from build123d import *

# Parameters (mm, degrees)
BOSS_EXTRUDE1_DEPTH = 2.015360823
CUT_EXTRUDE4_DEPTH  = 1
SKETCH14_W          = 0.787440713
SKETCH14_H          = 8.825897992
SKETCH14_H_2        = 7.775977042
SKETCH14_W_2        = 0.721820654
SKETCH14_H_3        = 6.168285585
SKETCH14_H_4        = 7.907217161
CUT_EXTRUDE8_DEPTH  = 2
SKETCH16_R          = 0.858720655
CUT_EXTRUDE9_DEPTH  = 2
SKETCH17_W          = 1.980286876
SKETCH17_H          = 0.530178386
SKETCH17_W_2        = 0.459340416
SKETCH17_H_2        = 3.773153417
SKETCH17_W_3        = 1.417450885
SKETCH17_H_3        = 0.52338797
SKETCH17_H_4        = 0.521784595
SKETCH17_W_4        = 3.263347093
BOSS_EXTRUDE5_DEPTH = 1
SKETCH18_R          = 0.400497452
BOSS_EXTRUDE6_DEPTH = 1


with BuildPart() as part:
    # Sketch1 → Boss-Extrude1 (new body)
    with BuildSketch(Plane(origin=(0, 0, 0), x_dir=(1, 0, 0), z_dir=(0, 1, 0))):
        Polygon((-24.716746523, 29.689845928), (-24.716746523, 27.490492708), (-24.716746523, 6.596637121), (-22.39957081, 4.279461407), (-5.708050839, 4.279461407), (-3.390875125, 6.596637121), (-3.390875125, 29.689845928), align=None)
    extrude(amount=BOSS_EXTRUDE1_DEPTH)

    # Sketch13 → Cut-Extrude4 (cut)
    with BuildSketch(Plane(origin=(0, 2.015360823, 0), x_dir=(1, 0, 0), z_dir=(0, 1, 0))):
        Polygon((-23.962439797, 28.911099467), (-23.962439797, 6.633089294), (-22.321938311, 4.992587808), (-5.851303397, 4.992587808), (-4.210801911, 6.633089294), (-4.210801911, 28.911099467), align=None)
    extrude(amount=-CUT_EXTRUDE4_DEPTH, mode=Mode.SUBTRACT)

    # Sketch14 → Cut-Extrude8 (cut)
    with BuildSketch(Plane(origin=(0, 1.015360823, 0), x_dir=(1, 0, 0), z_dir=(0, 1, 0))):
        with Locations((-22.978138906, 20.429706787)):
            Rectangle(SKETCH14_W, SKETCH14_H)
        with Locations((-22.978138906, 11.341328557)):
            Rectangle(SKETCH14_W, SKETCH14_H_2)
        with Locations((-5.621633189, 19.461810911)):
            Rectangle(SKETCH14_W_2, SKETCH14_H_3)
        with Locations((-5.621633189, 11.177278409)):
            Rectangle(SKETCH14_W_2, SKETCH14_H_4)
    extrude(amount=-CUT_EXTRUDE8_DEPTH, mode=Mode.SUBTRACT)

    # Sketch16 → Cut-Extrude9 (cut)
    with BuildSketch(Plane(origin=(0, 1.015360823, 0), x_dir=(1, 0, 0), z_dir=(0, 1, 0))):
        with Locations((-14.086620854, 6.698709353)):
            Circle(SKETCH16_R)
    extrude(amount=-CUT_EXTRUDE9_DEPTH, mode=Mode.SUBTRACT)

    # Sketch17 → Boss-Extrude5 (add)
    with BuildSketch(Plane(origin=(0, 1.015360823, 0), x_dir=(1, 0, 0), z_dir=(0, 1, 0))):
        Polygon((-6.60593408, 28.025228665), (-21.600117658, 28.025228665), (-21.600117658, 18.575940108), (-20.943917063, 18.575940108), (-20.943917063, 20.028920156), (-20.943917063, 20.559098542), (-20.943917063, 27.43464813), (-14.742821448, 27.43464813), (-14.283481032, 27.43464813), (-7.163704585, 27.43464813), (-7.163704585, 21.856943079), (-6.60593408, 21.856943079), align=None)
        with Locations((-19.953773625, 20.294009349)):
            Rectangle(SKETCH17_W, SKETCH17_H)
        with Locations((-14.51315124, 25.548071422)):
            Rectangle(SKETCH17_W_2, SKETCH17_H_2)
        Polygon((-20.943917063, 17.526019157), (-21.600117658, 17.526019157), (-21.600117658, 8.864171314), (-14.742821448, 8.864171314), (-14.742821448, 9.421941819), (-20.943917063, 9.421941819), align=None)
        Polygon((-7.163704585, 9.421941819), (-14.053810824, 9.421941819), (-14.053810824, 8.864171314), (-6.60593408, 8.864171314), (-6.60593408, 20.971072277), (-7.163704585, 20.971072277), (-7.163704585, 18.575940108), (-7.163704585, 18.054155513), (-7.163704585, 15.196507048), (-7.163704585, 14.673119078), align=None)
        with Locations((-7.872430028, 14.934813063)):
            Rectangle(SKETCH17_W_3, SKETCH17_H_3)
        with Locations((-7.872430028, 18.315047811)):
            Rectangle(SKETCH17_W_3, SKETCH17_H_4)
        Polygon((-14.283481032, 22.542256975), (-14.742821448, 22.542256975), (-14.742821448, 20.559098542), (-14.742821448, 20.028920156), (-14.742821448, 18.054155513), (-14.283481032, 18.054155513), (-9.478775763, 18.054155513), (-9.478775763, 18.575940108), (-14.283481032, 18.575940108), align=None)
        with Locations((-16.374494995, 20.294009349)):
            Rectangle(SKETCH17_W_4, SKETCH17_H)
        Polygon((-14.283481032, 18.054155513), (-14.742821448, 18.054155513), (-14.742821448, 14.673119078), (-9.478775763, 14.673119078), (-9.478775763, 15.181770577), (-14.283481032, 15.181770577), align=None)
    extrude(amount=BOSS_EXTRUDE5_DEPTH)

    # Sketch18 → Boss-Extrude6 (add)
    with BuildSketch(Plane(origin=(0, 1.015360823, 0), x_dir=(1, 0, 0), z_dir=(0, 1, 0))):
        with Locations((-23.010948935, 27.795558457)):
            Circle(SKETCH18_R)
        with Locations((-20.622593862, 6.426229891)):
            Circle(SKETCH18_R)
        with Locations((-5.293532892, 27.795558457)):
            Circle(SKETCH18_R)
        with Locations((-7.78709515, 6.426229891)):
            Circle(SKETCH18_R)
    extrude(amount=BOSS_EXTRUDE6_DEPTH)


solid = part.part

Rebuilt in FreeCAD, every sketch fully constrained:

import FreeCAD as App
import Part
import Sketcher

V = App.Vector

doc = App.newDocument("Part")
body = doc.addObject("PartDesign::Body", "Body")

# Sketch on XZ plane
sketch1 = body.newObject("Sketcher::SketchObject", "Sketch")
sketch1.AttachmentSupport = (doc.getObject("XZ_Plane"), [""])
sketch1.MapMode = "FlatFace"
sketch1.addGeometry([
    Part.LineSegment(V(-24.716747, -29.689846, 0), V(-24.716747, -6.596637, 0)),  # 0
    Part.LineSegment(V(-24.716747, -6.596637, 0), V(-22.399571, -4.279461, 0)),  # 1
    Part.LineSegment(V(-22.399571, -4.279461, 0), V(-5.708051, -4.279461, 0)),  # 2
    Part.LineSegment(V(-5.708051, -4.279461, 0), V(-3.390875, -6.596637, 0)),  # 3
    Part.LineSegment(V(-3.390875, -6.596637, 0), V(-3.390875, -29.689846, 0)),  # 4
    Part.LineSegment(V(-3.390875, -29.689846, 0), V(-24.716747, -29.689846, 0)),  # 5
], False)
sketch1.addConstraint([
    Sketcher.Constraint("Coincident", 0, 2, 1, 1),
    Sketcher.Constraint("Coincident", 1, 2, 2, 1),
    Sketcher.Constraint("Coincident", 2, 2, 3, 1),
    Sketcher.Constraint("Coincident", 3, 2, 4, 1),
    Sketcher.Constraint("Coincident", 4, 2, 5, 1),
    Sketcher.Constraint("Coincident", 5, 2, 0, 1),
    Sketcher.Constraint("Vertical", 0),
    Sketcher.Constraint("Horizontal", 2),
    Sketcher.Constraint("Vertical", 4),
    Sketcher.Constraint("Horizontal", 5),
    Sketcher.Constraint("Perpendicular", 1, 3),
    Sketcher.Constraint("Horizontal", 0, 2, 3, 2),
    Sketcher.Constraint("Equal", 1, 3),
    Sketcher.Constraint("DistanceX", 2, 1, 2, 2, 16.69152),
    Sketcher.Constraint("DistanceX", 5, 2, 5, 1, 21.325871),
    Sketcher.Constraint("DistanceY", 0, 1, 0, 2, 23.093209),
    Sketcher.Constraint("DistanceX", 1, 2, -1, 1, 22.399571),
    Sketcher.Constraint("DistanceY", 1, 2, -1, 1, 4.279461),
])
pad1 = body.newObject("PartDesign::Pad", "Pad")
pad1.Profile = sketch1
pad1.Length = 2.015361
pad1.Reversed = True

# Sketch on XZ plane
sketch2 = body.newObject("Sketcher::SketchObject", "Sketch001")
sketch2.AttachmentSupport = (doc.getObject("XZ_Plane"), [""])
sketch2.MapMode = "FlatFace"
sketch2.AttachmentOffset = App.Placement(V(0, 0, -2.015361), App.Rotation())
sketch2.addGeometry([
    Part.LineSegment(V(-23.96244, -28.911099, 0), V(-23.96244, -6.633089, 0)),  # 0
    Part.LineSegment(V(-23.96244, -6.633089, 0), V(-22.321938, -4.992588, 0)),  # 1
    Part.LineSegment(V(-22.321938, -4.992588, 0), V(-5.851303, -4.992588, 0)),  # 2
    Part.LineSegment(V(-5.851303, -4.992588, 0), V(-4.210802, -6.633089, 0)),  # 3
    Part.LineSegment(V(-4.210802, -6.633089, 0), V(-4.210802, -28.911099, 0)),  # 4
    Part.LineSegment(V(-4.210802, -28.911099, 0), V(-23.96244, -28.911099, 0)),  # 5
], False)
sketch2.addConstraint([
    Sketcher.Constraint("Coincident", 0, 2, 1, 1),
    Sketcher.Constraint("Coincident", 1, 2, 2, 1),
    Sketcher.Constraint("Coincident", 2, 2, 3, 1),
    Sketcher.Constraint("Coincident", 3, 2, 4, 1),
    Sketcher.Constraint("Coincident", 4, 2, 5, 1),
    Sketcher.Constraint("Coincident", 5, 2, 0, 1),
    Sketcher.Constraint("Vertical", 0),
    Sketcher.Constraint("Horizontal", 2),
    Sketcher.Constraint("Vertical", 4),
    Sketcher.Constraint("Horizontal", 5),
    Sketcher.Constraint("Perpendicular", 1, 3),
    Sketcher.Constraint("Horizontal", 0, 2, 3, 2),
    Sketcher.Constraint("Equal", 1, 3),
    Sketcher.Constraint("DistanceY", 0, 1, 0, 2, 22.27801),
    Sketcher.Constraint("DistanceX", 3, 2, -1, 1, 4.210802),
    Sketcher.Constraint("DistanceY", 4, 2, -1, 1, 28.911099),
    Sketcher.Constraint("DistanceX", 0, 2, 1, 2, 1.640501),
    Sketcher.Constraint("DistanceX", 2, 1, 2, 2, 16.470635),
])
pocket1 = body.newObject("PartDesign::Pocket", "Pocket")
pocket1.Profile = sketch2
pocket1.Length = 1
pocket1.Reversed = True

# Sketch on XZ plane
sketch3 = body.newObject("Sketcher::SketchObject", "Sketch002")
sketch3.AttachmentSupport = (doc.getObject("XZ_Plane"), [""])
sketch3.MapMode = "FlatFace"
sketch3.AttachmentOffset = App.Placement(V(0, 0, -1.015361), App.Rotation())
sketch3.addGeometry([
    Part.LineSegment(V(-23.371859, -24.842656, 0), V(-23.371859, -16.016758, 0)),  # 0
    Part.LineSegment(V(-23.371859, -16.016758, 0), V(-22.584419, -16.016758, 0)),  # 1
    Part.LineSegment(V(-22.584419, -16.016758, 0), V(-22.584419, -24.842656, 0)),  # 2
    Part.LineSegment(V(-22.584419, -24.842656, 0), V(-23.371859, -24.842656, 0)),  # 3
    Part.LineSegment(V(-23.371859, -15.229317, 0), V(-23.371859, -7.45334, 0)),  # 4
    Part.LineSegment(V(-23.371859, -7.45334, 0), V(-22.584419, -7.45334, 0)),  # 5
    Part.LineSegment(V(-22.584419, -7.45334, 0), V(-22.584419, -15.229317, 0)),  # 6
    Part.LineSegment(V(-22.584419, -15.229317, 0), V(-23.371859, -15.229317, 0)),  # 7
    Part.LineSegment(V(-5.982544, -22.545954, 0), V(-5.982544, -16.377668, 0)),  # 8
    Part.LineSegment(V(-5.982544, -16.377668, 0), V(-5.260723, -16.377668, 0)),  # 9
    Part.LineSegment(V(-5.260723, -16.377668, 0), V(-5.260723, -22.545954, 0)),  # 10
    Part.LineSegment(V(-5.260723, -22.545954, 0), V(-5.982544, -22.545954, 0)),  # 11
    Part.LineSegment(V(-5.982544, -15.130887, 0), V(-5.982544, -7.22367, 0)),  # 12
    Part.LineSegment(V(-5.982544, -7.22367, 0), V(-5.260723, -7.22367, 0)),  # 13
    Part.LineSegment(V(-5.260723, -7.22367, 0), V(-5.260723, -15.130887, 0)),  # 14
    Part.LineSegment(V(-5.260723, -15.130887, 0), V(-5.982544, -15.130887, 0)),  # 15
], False)
sketch3.addConstraint([
    Sketcher.Constraint("Coincident", 0, 2, 1, 1),
    Sketcher.Constraint("Coincident", 1, 2, 2, 1),
    Sketcher.Constraint("Coincident", 2, 2, 3, 1),
    Sketcher.Constraint("Coincident", 3, 2, 0, 1),
    Sketcher.Constraint("Coincident", 4, 2, 5, 1),
    Sketcher.Constraint("Coincident", 5, 2, 6, 1),
    Sketcher.Constraint("Coincident", 6, 2, 7, 1),
    Sketcher.Constraint("Coincident", 7, 2, 4, 1),
    Sketcher.Constraint("Coincident", 8, 2, 9, 1),
    Sketcher.Constraint("Coincident", 9, 2, 10, 1),
    Sketcher.Constraint("Coincident", 10, 2, 11, 1),
    Sketcher.Constraint("Coincident", 11, 2, 8, 1),
    Sketcher.Constraint("Coincident", 12, 2, 13, 1),
    Sketcher.Constraint("Coincident", 13, 2, 14, 1),
    Sketcher.Constraint("Coincident", 14, 2, 15, 1),
    Sketcher.Constraint("Coincident", 15, 2, 12, 1),
    Sketcher.Constraint("Vertical", 0),
    Sketcher.Constraint("Horizontal", 1),
    Sketcher.Constraint("Vertical", 2),
    Sketcher.Constraint("Horizontal", 3),
    Sketcher.Constraint("Vertical", 4),
    Sketcher.Constraint("Horizontal", 5),
    Sketcher.Constraint("Vertical", 6),
    Sketcher.Constraint("Horizontal", 7),
    Sketcher.Constraint("Vertical", 8),
    Sketcher.Constraint("Horizontal", 9),
    Sketcher.Constraint("Vertical", 10),
    Sketcher.Constraint("Horizontal", 11),
    Sketcher.Constraint("Vertical", 12),
    Sketcher.Constraint("Horizontal", 13),
    Sketcher.Constraint("Vertical", 14),
    Sketcher.Constraint("Horizontal", 15),
    Sketcher.Constraint("Vertical", 3, 2, 4, 2),
    Sketcher.Constraint("Vertical", 2, 2, 5, 2),
    Sketcher.Constraint("Vertical", 11, 2, 12, 2),
    Sketcher.Constraint("Vertical", 10, 2, 13, 2),
    Sketcher.Constraint("DistanceY", 8, 2, 12, 2, 9.153998),
    Sketcher.Constraint("DistanceX", 1, 1, 1, 2, 0.787441),
    Sketcher.Constraint("DistanceX", 9, 1, 9, 2, 0.721821),
    Sketcher.Constraint("DistanceY", 0, 1, 0, 2, 8.825898),
    Sketcher.Constraint("DistanceY", 4, 1, 4, 2, 7.775977),
    Sketcher.Constraint("DistanceY", 8, 1, 8, 2, 6.168286),
    Sketcher.Constraint("DistanceY", 12, 1, 12, 2, 7.907217),
    Sketcher.Constraint("DistanceX", 0, 2, -1, 1, 23.371859),
    Sketcher.Constraint("DistanceY", 4, 2, -1, 1, 7.45334),
    Sketcher.Constraint("DistanceY", 8, 2, -1, 1, 16.377668),
    Sketcher.Constraint("DistanceY", 1, 2, 6, 2, 0.787441),
    Sketcher.Constraint("DistanceX", 8, 2, -1, 1, 5.982544),
])
pocket2 = body.newObject("PartDesign::Pocket", "Pocket001")
pocket2.Profile = sketch3
pocket2.Length = 2
pocket2.Reversed = True

# Sketch on XZ plane
sketch4 = body.newObject("Sketcher::SketchObject", "Sketch003")
sketch4.AttachmentSupport = (doc.getObject("XZ_Plane"), [""])
sketch4.MapMode = "FlatFace"
sketch4.AttachmentOffset = App.Placement(V(0, 0, -1.015361), App.Rotation())
sketch4.addGeometry(Part.Circle(V(-14.086621, -6.698709, 0), V(0, 0, 1), 0.858721), False)
sketch4.addConstraint([
    Sketcher.Constraint("Diameter", 0, 1.717441),
    Sketcher.Constraint("DistanceX", 0, 3, -1, 1, 14.086621),
    Sketcher.Constraint("DistanceY", 0, 3, -1, 1, 6.698709),
])
pocket3 = body.newObject("PartDesign::Pocket", "Pocket002")
pocket3.Profile = sketch4
pocket3.Length = 2
pocket3.Reversed = True

# Sketch on XZ plane
sketch5 = body.newObject("Sketcher::SketchObject", "Sketch004")
sketch5.AttachmentSupport = (doc.getObject("XZ_Plane"), [""])
sketch5.MapMode = "FlatFace"
sketch5.AttachmentOffset = App.Placement(V(0, 0, -1.015361), App.Rotation())
sketch5.addGeometry([
    Part.LineSegment(V(-6.605934, -28.025229, 0), V(-21.600118, -28.025229, 0)),  # 0
    Part.LineSegment(V(-21.600118, -28.025229, 0), V(-21.600118, -18.57594, 0)),  # 1
    Part.LineSegment(V(-21.600118, -18.57594, 0), V(-20.943917, -18.57594, 0)),  # 2
    Part.LineSegment(V(-20.943917, -18.57594, 0), V(-20.943917, -20.02892, 0)),  # 3
    Part.LineSegment(V(-20.943917, -20.02892, 0), V(-18.96363, -20.02892, 0)),  # 4
    Part.LineSegment(V(-18.96363, -20.02892, 0), V(-18.96363, -20.559099, 0)),  # 5
    Part.LineSegment(V(-18.96363, -20.559099, 0), V(-20.943917, -20.559099, 0)),  # 6
    Part.LineSegment(V(-20.943917, -20.559099, 0), V(-20.943917, -27.434648, 0)),  # 7
    Part.LineSegment(V(-20.943917, -27.434648, 0), V(-14.742821, -27.434648, 0)),  # 8
    Part.LineSegment(V(-14.742821, -27.434648, 0), V(-14.742821, -23.661495, 0)),  # 9
    Part.LineSegment(V(-14.742821, -23.661495, 0), V(-14.283481, -23.661495, 0)),  # 10
    Part.LineSegment(V(-14.283481, -23.661495, 0), V(-14.283481, -27.434648, 0)),  # 11
    Part.LineSegment(V(-14.283481, -27.434648, 0), V(-7.163705, -27.434648, 0)),  # 12
    Part.LineSegment(V(-7.163705, -27.434648, 0), V(-7.163705, -21.856943, 0)),  # 13
    Part.LineSegment(V(-7.163705, -21.856943, 0), V(-6.605934, -21.856943, 0)),  # 14
    Part.LineSegment(V(-6.605934, -21.856943, 0), V(-6.605934, -28.025229, 0)),  # 15
    Part.LineSegment(V(-20.943917, -17.526019, 0), V(-21.600118, -17.526019, 0)),  # 16
    Part.LineSegment(V(-21.600118, -17.526019, 0), V(-21.600118, -8.864171, 0)),  # 17
    Part.LineSegment(V(-21.600118, -8.864171, 0), V(-14.742821, -8.864171, 0)),  # 18
    Part.LineSegment(V(-14.742821, -8.864171, 0), V(-14.742821, -9.421942, 0)),  # 19
    Part.LineSegment(V(-14.742821, -9.421942, 0), V(-20.943917, -9.421942, 0)),  # 20
    Part.LineSegment(V(-20.943917, -9.421942, 0), V(-20.943917, -17.526019, 0)),  # 21
    Part.LineSegment(V(-7.163705, -9.421942, 0), V(-14.053811, -9.421942, 0)),  # 22
    Part.LineSegment(V(-14.053811, -9.421942, 0), V(-14.053811, -8.864171, 0)),  # 23
    Part.LineSegment(V(-14.053811, -8.864171, 0), V(-6.605934, -8.864171, 0)),  # 24
    Part.LineSegment(V(-6.605934, -8.864171, 0), V(-6.605934, -20.971072, 0)),  # 25
    Part.LineSegment(V(-6.605934, -20.971072, 0), V(-7.163705, -20.971072, 0)),  # 26
    Part.LineSegment(V(-7.163705, -20.971072, 0), V(-7.163705, -18.57594, 0)),  # 27
    Part.LineSegment(V(-7.163705, -18.57594, 0), V(-8.581155, -18.57594, 0)),  # 28
    Part.LineSegment(V(-8.581155, -18.57594, 0), V(-8.581155, -18.054156, 0)),  # 29
    Part.LineSegment(V(-8.581155, -18.054156, 0), V(-7.163705, -18.054156, 0)),  # 30
    Part.LineSegment(V(-7.163705, -18.054156, 0), V(-7.163705, -15.196507, 0)),  # 31
    Part.LineSegment(V(-7.163705, -15.196507, 0), V(-8.581155, -15.196507, 0)),  # 32
    Part.LineSegment(V(-8.581155, -15.196507, 0), V(-8.581155, -14.673119, 0)),  # 33
    Part.LineSegment(V(-8.581155, -14.673119, 0), V(-7.163705, -14.673119, 0)),  # 34
    Part.LineSegment(V(-7.163705, -14.673119, 0), V(-7.163705, -9.421942, 0)),  # 35
    Part.LineSegment(V(-14.283481, -22.542257, 0), V(-14.742821, -22.542257, 0)),  # 36
    Part.LineSegment(V(-14.742821, -22.542257, 0), V(-14.742821, -20.559099, 0)),  # 37
    Part.LineSegment(V(-14.742821, -20.559099, 0), V(-18.006169, -20.559099, 0)),  # 38
    Part.LineSegment(V(-18.006169, -20.559099, 0), V(-18.006169, -20.02892, 0)),  # 39
    Part.LineSegment(V(-18.006169, -20.02892, 0), V(-14.742821, -20.02892, 0)),  # 40
    Part.LineSegment(V(-14.742821, -20.02892, 0), V(-14.742821, -14.673119, 0)),  # 41
    Part.LineSegment(V(-14.742821, -14.673119, 0), V(-9.478776, -14.673119, 0)),  # 42
    Part.LineSegment(V(-9.478776, -14.673119, 0), V(-9.478776, -15.181771, 0)),  # 43
    Part.LineSegment(V(-9.478776, -15.181771, 0), V(-14.283481, -15.181771, 0)),  # 44
    Part.LineSegment(V(-14.283481, -15.181771, 0), V(-14.283481, -18.054156, 0)),  # 45
    Part.LineSegment(V(-14.283481, -18.054156, 0), V(-9.478776, -18.054156, 0)),  # 46
    Part.LineSegment(V(-9.478776, -18.054156, 0), V(-9.478776, -18.57594, 0)),  # 47
    Part.LineSegment(V(-9.478776, -18.57594, 0), V(-14.283481, -18.57594, 0)),  # 48
    Part.LineSegment(V(-14.283481, -18.57594, 0), V(-14.283481, -22.542257, 0)),  # 49
], False)
sketch5.addConstraint([
    Sketcher.Constraint("Coincident", 0, 2, 1, 1),
    Sketcher.Constraint("Coincident", 1, 2, 2, 1),
    Sketcher.Constraint("Coincident", 2, 2, 3, 1),
    Sketcher.Constraint("Coincident", 3, 2, 4, 1),
    Sketcher.Constraint("Coincident", 4, 2, 5, 1),
    Sketcher.Constraint("Coincident", 5, 2, 6, 1),
    Sketcher.Constraint("Coincident", 6, 2, 7, 1),
    Sketcher.Constraint("Coincident", 7, 2, 8, 1),
    Sketcher.Constraint("Coincident", 8, 2, 9, 1),
    Sketcher.Constraint("Coincident", 9, 2, 10, 1),
    Sketcher.Constraint("Coincident", 10, 2, 11, 1),
    Sketcher.Constraint("Coincident", 11, 2, 12, 1),
    Sketcher.Constraint("Coincident", 12, 2, 13, 1),
    Sketcher.Constraint("Coincident", 13, 2, 14, 1),
    Sketcher.Constraint("Coincident", 14, 2, 15, 1),
    Sketcher.Constraint("Coincident", 15, 2, 0, 1),
    Sketcher.Constraint("Coincident", 16, 2, 17, 1),
    Sketcher.Constraint("Coincident", 17, 2, 18, 1),
    Sketcher.Constraint("Coincident", 18, 2, 19, 1),
    Sketcher.Constraint("Coincident", 19, 2, 20, 1),
    Sketcher.Constraint("Coincident", 20, 2, 21, 1),
    Sketcher.Constraint("Coincident", 21, 2, 16, 1),
    Sketcher.Constraint("Coincident", 22, 2, 23, 1),
    Sketcher.Constraint("Coincident", 23, 2, 24, 1),
    Sketcher.Constraint("Coincident", 24, 2, 25, 1),
    Sketcher.Constraint("Coincident", 25, 2, 26, 1),
    Sketcher.Constraint("Coincident", 26, 2, 27, 1),
    Sketcher.Constraint("Coincident", 27, 2, 28, 1),
    Sketcher.Constraint("Coincident", 28, 2, 29, 1),
    Sketcher.Constraint("Coincident", 29, 2, 30, 1),
    Sketcher.Constraint("Coincident", 30, 2, 31, 1),
    Sketcher.Constraint("Coincident", 31, 2, 32, 1),
    Sketcher.Constraint("Coincident", 32, 2, 33, 1),
    Sketcher.Constraint("Coincident", 33, 2, 34, 1),
    Sketcher.Constraint("Coincident", 34, 2, 35, 1),
    Sketcher.Constraint("Coincident", 35, 2, 22, 1),
    Sketcher.Constraint("Coincident", 36, 2, 37, 1),
    Sketcher.Constraint("Coincident", 37, 2, 38, 1),
    Sketcher.Constraint("Coincident", 38, 2, 39, 1),
    Sketcher.Constraint("Coincident", 39, 2, 40, 1),
    Sketcher.Constraint("Coincident", 40, 2, 41, 1),
    Sketcher.Constraint("Coincident", 41, 2, 42, 1),
    Sketcher.Constraint("Coincident", 42, 2, 43, 1),
    Sketcher.Constraint("Coincident", 43, 2, 44, 1),
    Sketcher.Constraint("Coincident", 44, 2, 45, 1),
    Sketcher.Constraint("Coincident", 45, 2, 46, 1),
    Sketcher.Constraint("Coincident", 46, 2, 47, 1),
    Sketcher.Constraint("Coincident", 47, 2, 48, 1),
    Sketcher.Constraint("Coincident", 48, 2, 49, 1),
    Sketcher.Constraint("Coincident", 49, 2, 36, 1),
    Sketcher.Constraint("Horizontal", 0),
    Sketcher.Constraint("Vertical", 1),
    Sketcher.Constraint("Horizontal", 2),
    Sketcher.Constraint("Vertical", 3),
    Sketcher.Constraint("Horizontal", 4),
    Sketcher.Constraint("Vertical", 5),
    Sketcher.Constraint("Horizontal", 6),
    Sketcher.Constraint("Vertical", 7),
    Sketcher.Constraint("Horizontal", 8),
    Sketcher.Constraint("Vertical", 9),
    Sketcher.Constraint("Horizontal", 10),
    Sketcher.Constraint("Vertical", 11),
    Sketcher.Constraint("Horizontal", 12),
    Sketcher.Constraint("Vertical", 13),
    Sketcher.Constraint("Horizontal", 14),
    Sketcher.Constraint("Vertical", 15),
    Sketcher.Constraint("Horizontal", 16),
    Sketcher.Constraint("Vertical", 17),
    Sketcher.Constraint("Horizontal", 18),
    Sketcher.Constraint("Vertical", 19),
    Sketcher.Constraint("Horizontal", 20),
    Sketcher.Constraint("Vertical", 21),
    Sketcher.Constraint("Horizontal", 22),
    Sketcher.Constraint("Vertical", 23),
    Sketcher.Constraint("Horizontal", 24),
    Sketcher.Constraint("Vertical", 25),
    Sketcher.Constraint("Horizontal", 26),
    Sketcher.Constraint("Vertical", 27),
    Sketcher.Constraint("Horizontal", 28),
    Sketcher.Constraint("Vertical", 29),
    Sketcher.Constraint("Horizontal", 30),
    Sketcher.Constraint("Vertical", 31),
    Sketcher.Constraint("Horizontal", 32),
    Sketcher.Constraint("Vertical", 33),
    Sketcher.Constraint("Horizontal", 34),
    Sketcher.Constraint("Vertical", 35),
    Sketcher.Constraint("Horizontal", 36),
    Sketcher.Constraint("Vertical", 37),
    Sketcher.Constraint("Horizontal", 38),
    Sketcher.Constraint("Vertical", 39),
    Sketcher.Constraint("Horizontal", 40),
    Sketcher.Constraint("Vertical", 41),
    Sketcher.Constraint("Horizontal", 42),
    Sketcher.Constraint("Vertical", 43),
    Sketcher.Constraint("Horizontal", 44),
    Sketcher.Constraint("Vertical", 45),
    Sketcher.Constraint("Horizontal", 46),
    Sketcher.Constraint("Vertical", 47),
    Sketcher.Constraint("Horizontal", 48),
    Sketcher.Constraint("Vertical", 49),
    Sketcher.Constraint("Horizontal", 8, 2, 11, 2),
    Sketcher.Constraint("Horizontal", 20, 2, 22, 2),
    Sketcher.Constraint("Horizontal", 18, 2, 23, 2),
    Sketcher.Constraint("Horizontal", 2, 2, 27, 2),
    Sketcher.Constraint("Horizontal", 6, 2, 37, 2),
    Sketcher.Constraint("Horizontal", 4, 2, 39, 2),
    Sketcher.Constraint("Horizontal", 34, 2, 41, 2),
    Sketcher.Constraint("Horizontal", 30, 2, 45, 2),
    Sketcher.Constraint("Horizontal", 28, 2, 47, 2),
    Sketcher.Constraint("Vertical", 3, 2, 6, 2),
    Sketcher.Constraint("Vertical", 1, 2, 16, 2),
    Sketcher.Constraint("Vertical", 9, 2, 18, 2),
    Sketcher.Constraint("Vertical", 7, 2, 20, 2),
    Sketcher.Constraint("Vertical", 15, 2, 24, 2),
    Sketcher.Constraint("Vertical", 13, 2, 26, 2),
    Sketcher.Constraint("Vertical", 27, 2, 30, 2),
    Sketcher.Constraint("Vertical", 29, 2, 32, 2),
    Sketcher.Constraint("Vertical", 31, 2, 34, 2),
    Sketcher.Constraint("Vertical", 19, 2, 36, 2),
    Sketcher.Constraint("Vertical", 37, 2, 40, 2),
    Sketcher.Constraint("Vertical", 11, 2, 44, 2),
    Sketcher.Constraint("Vertical", 43, 2, 46, 2),
    Sketcher.Constraint("Vertical", 45, 2, 48, 2),
    Sketcher.Constraint("Equal", 26, 19),
    Sketcher.Constraint("DistanceX", 2, 1, 2, 2, 0.656201),
    Sketcher.Constraint("DistanceY", 25, 2, 25, 1, 12.106901),
    Sketcher.Constraint("DistanceY", 41, 1, 41, 2, 5.355801),
    Sketcher.Constraint("DistanceY", 2, 2, 19, 2, 9.153998),
    Sketcher.Constraint("DistanceX", 10, 1, 10, 2, 0.45934),
    Sketcher.Constraint("DistanceX", 14, 1, 14, 2, 0.557771),
    Sketcher.Constraint("DistanceX", 28, 2, 28, 1, 1.417451),
    Sketcher.Constraint("DistanceY", 1, 1, 1, 2, 9.449289),
    Sketcher.Constraint("DistanceY", 3, 2, 3, 1, 1.45298),
    Sketcher.Constraint("DistanceY", 5, 2, 5, 1, 0.530178),
    Sketcher.Constraint("DistanceY", 7, 2, 7, 1, 6.87555),
    Sketcher.Constraint("DistanceY", 31, 1, 31, 2, 2.857648),
    Sketcher.Constraint("DistanceY", 37, 1, 37, 2, 1.983158),
    Sketcher.Constraint("DistanceY", 43, 2, 43, 1, 0.508651),
    Sketcher.Constraint("DistanceY", 5, 2, -1, 1, 20.559099),
    Sketcher.Constraint("DistanceY", 3, 2, 16, 2, 2.502901),
    Sketcher.Constraint("DistanceX", 0, 2, 0, 1, 14.994184),
    Sketcher.Constraint("DistanceX", 4, 1, 4, 2, 1.980287),
    Sketcher.Constraint("DistanceX", 8, 1, 8, 2, 6.201096),
    Sketcher.Constraint("DistanceX", 22, 2, 22, 1, 6.890106),
    Sketcher.Constraint("DistanceX", 38, 2, 38, 1, 3.263347),
    Sketcher.Constraint("DistanceX", 42, 1, 42, 2, 5.264046),
    Sketcher.Constraint("DistanceY", 9, 1, 9, 2, 3.773153),
    Sketcher.Constraint("DistanceY", 13, 1, 13, 2, 5.577705),
    Sketcher.Constraint("DistanceY", 29, 1, 29, 2, 0.521785),
    Sketcher.Constraint("DistanceX", 4, 2, -1, 1, 18.96363),
])
pad2 = body.newObject("PartDesign::Pad", "Pad001")
pad2.Profile = sketch5
pad2.Length = 1
pad2.Reversed = True

# Sketch on XZ plane
sketch6 = body.newObject("Sketcher::SketchObject", "Sketch005")
sketch6.AttachmentSupport = (doc.getObject("XZ_Plane"), [""])
sketch6.MapMode = "FlatFace"
sketch6.AttachmentOffset = App.Placement(V(0, 0, -1.015361), App.Rotation())
sketch6.addGeometry([
    Part.Circle(V(-23.010949, -27.795558, 0), V(0, 0, 1), 0.400497),
    Part.Circle(V(-20.622594, -6.42623, 0), V(0, 0, 1), 0.400497),
    Part.Circle(V(-5.293533, -27.795558, 0), V(0, 0, 1), 0.400497),
    Part.Circle(V(-7.787095, -6.42623, 0), V(0, 0, 1), 0.400497),
], False)
sketch6.addConstraint([
    Sketcher.Constraint("Equal", 0, 1),
    Sketcher.Constraint("Equal", 1, 2),
    Sketcher.Constraint("Equal", 2, 3),
    Sketcher.Constraint("Horizontal", 0, 3, 2, 3),
    Sketcher.Constraint("Horizontal", 1, 3, 3, 3),
    Sketcher.Constraint("Diameter", 0, 0.800995),
    Sketcher.Constraint("DistanceX", 1, 3, 3, 3, 12.835499),
    Sketcher.Constraint("DistanceX", 0, 3, -1, 1, 23.010949),
    Sketcher.Constraint("DistanceY", 0, 3, -1, 1, 27.795558),
    Sketcher.Constraint("DistanceY", 1, 3, -1, 1, 6.42623),
    Sketcher.Constraint("DistanceX", 1, 3, 2, 3, 15.329061),
    Sketcher.Constraint("DistanceX", 1, 3, -1, 1, 20.622594),
])
pad3 = body.newObject("PartDesign::Pad", "Pad002")
pad3.Profile = sketch6
pad3.Length = 1
pad3.Reversed = True

doc.recompute()
